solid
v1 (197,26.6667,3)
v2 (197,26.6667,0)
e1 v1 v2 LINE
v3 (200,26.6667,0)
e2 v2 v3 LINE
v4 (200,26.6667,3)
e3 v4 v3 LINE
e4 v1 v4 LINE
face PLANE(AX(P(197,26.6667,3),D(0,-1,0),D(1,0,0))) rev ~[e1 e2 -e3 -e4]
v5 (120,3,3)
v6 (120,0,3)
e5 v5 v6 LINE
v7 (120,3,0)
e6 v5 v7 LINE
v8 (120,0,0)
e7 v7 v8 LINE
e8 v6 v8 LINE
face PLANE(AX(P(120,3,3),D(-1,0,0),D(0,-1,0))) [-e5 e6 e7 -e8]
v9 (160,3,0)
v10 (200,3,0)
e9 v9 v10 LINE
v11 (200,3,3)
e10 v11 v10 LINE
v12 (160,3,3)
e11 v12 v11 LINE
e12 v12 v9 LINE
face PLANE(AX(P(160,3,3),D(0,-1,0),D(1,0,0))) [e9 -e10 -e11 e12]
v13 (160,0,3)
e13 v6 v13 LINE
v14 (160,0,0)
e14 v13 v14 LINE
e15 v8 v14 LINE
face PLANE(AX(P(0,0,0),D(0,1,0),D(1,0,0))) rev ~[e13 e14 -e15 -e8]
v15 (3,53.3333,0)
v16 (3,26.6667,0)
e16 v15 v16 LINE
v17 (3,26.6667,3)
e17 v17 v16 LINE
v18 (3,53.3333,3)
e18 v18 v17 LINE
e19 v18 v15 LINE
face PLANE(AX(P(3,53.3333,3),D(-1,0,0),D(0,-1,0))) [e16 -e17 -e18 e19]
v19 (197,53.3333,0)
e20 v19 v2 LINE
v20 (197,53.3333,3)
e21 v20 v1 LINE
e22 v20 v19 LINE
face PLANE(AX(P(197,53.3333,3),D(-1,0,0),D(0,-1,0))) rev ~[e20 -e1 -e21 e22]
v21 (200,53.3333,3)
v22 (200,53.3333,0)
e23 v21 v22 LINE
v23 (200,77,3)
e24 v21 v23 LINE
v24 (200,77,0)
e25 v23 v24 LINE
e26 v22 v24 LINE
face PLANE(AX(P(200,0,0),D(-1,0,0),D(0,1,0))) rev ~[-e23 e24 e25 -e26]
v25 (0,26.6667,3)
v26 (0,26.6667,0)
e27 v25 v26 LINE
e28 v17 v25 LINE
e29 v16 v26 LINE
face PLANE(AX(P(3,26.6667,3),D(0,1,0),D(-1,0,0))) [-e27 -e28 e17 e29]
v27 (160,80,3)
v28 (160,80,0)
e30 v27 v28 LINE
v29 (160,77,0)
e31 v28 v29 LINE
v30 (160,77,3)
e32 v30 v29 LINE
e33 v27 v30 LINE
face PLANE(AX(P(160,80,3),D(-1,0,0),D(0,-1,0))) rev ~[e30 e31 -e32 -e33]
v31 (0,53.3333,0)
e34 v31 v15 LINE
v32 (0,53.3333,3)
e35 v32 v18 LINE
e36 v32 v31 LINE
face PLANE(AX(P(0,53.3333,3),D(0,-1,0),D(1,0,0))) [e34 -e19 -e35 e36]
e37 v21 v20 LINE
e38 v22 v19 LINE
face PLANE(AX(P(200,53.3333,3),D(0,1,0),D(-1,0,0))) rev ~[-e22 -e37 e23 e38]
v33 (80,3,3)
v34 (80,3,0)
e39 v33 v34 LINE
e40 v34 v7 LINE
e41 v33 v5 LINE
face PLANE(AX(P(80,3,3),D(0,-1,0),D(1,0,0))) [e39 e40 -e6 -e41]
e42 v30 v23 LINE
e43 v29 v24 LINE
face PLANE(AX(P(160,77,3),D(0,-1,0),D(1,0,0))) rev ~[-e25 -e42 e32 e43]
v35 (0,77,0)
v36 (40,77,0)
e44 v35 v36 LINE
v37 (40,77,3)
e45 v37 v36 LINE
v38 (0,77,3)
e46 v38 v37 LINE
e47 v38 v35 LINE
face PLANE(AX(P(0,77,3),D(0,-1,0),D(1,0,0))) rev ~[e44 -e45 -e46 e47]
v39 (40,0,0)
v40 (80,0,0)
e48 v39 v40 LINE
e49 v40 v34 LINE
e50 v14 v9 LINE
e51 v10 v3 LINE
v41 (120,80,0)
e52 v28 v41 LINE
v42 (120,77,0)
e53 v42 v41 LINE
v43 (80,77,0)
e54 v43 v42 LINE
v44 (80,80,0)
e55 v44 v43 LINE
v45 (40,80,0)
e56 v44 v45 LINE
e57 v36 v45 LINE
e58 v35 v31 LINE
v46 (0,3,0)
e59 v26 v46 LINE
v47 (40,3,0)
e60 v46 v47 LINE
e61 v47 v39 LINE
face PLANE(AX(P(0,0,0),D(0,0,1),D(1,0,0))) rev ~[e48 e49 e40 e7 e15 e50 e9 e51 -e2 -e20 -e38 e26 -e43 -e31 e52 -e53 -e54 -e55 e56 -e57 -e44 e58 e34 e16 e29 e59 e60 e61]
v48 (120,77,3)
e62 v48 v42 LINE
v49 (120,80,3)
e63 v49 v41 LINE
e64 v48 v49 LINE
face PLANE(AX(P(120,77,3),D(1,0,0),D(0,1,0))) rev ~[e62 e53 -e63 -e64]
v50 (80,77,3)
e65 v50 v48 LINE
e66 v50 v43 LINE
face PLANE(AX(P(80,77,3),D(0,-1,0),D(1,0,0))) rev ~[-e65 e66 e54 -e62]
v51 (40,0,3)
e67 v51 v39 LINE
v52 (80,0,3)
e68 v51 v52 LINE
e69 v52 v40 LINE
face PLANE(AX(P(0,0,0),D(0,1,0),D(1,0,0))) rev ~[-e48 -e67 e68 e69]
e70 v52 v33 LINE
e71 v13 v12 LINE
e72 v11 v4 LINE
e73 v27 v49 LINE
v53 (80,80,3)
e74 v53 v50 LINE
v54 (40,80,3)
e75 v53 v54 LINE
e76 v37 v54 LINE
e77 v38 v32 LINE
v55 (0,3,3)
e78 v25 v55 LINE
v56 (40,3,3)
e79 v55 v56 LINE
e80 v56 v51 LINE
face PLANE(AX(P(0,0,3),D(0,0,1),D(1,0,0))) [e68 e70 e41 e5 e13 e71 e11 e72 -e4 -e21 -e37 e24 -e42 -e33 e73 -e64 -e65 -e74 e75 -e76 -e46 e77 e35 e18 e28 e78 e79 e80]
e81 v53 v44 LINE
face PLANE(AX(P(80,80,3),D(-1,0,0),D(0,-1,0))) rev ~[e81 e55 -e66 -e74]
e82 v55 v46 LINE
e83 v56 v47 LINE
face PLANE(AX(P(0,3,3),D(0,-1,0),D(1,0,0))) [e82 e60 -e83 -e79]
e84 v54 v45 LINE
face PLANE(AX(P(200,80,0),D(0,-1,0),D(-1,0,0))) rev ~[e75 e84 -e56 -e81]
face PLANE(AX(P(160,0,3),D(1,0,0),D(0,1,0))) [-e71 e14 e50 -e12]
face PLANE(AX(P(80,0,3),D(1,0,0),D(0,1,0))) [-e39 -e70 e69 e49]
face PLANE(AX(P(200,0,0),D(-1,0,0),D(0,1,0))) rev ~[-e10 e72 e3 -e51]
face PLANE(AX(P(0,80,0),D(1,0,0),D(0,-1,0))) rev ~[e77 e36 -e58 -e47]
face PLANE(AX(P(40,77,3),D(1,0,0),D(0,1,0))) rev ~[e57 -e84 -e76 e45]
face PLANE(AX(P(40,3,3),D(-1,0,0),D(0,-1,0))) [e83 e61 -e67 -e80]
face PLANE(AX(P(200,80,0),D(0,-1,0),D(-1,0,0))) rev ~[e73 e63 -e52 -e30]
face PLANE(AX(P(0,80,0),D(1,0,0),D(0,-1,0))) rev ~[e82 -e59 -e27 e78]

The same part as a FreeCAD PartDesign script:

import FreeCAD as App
import Part
import Sketcher
from FreeCAD import Vector

doc = App.newDocument("Part")
body = doc.addObject("PartDesign::Body", "Body")

sketch1 = body.newObject("Sketcher::SketchObject", "Sketch")
sketch1.AttachmentSupport = (doc.getObject("XY_Plane"), [""])
sketch1.MapMode = "FlatFace"
sketch1.addGeometry([
    Part.LineSegment(Vector(0, 80, 0), Vector(0, 0, 0)),
    Part.LineSegment(Vector(0, 0, 0), Vector(200, 0, 0)),
    Part.LineSegment(Vector(200, 0, 0), Vector(200, 80, 0)),
    Part.LineSegment(Vector(200, 80, 0), Vector(0, 80, 0)),
], False)
sketch1.addConstraint([
    Sketcher.Constraint("Coincident", 0, 2, 1, 1),
    Sketcher.Constraint("Coincident", 1, 2, 2, 1),
    Sketcher.Constraint("Coincident", 2, 2, 3, 1),
    Sketcher.Constraint("Coincident", 3, 2, 0, 1),
    Sketcher.Constraint("Vertical", 0),
    Sketcher.Constraint("Horizontal", 1),
    Sketcher.Constraint("Vertical", 2),
    Sketcher.Constraint("Horizontal", 3),
    Sketcher.Constraint("Coincident", 0, 2, -1, 1),
    Sketcher.Constraint("DistanceX", 1, 1, 1, 2, 200.0),
    Sketcher.Constraint("DistanceY", 0, 2, 0, 1, 80.0),
])
pad1 = body.newObject("PartDesign::Pad", "Pad")
pad1.Profile = sketch1
pad1.Length = 3

sketch2 = body.newObject("Sketcher::SketchObject", "Sketch001")
sketch2.AttachmentSupport = (doc.getObject("XY_Plane"), [""])
sketch2.MapMode = "FlatFace"
sketch2.AttachmentOffset = App.Placement(Vector(0, 0, 3), App.Rotation())
sketch2.addGeometry([
    Part.LineSegment(Vector(200, 80, 0), Vector(160, 80, 0)),
    Part.LineSegment(Vector(160, 80, 0), Vector(160, 77, 0)),
    Part.LineSegment(Vector(160, 77, 0), Vector(200, 77, 0)),
    Part.LineSegment(Vector(200, 77, 0), Vector(200, 80, 0)),
    Part.LineSegment(Vector(120, 80, 0), Vector(80, 80, 0)),
    Part.LineSegment(Vector(80, 80, 0), Vector(80, 77, 0)),
    Part.LineSegment(Vector(80, 77, 0), Vector(120, 77, 0)),
    Part.LineSegment(Vector(120, 77, 0), Vector(120, 80, 0)),
    Part.LineSegment(Vector(0, 80, 0), Vector(0, 77, 0)),
    Part.LineSegment(Vector(0, 77, 0), Vector(40, 77, 0)),
    Part.LineSegment(Vector(40, 77, 0), Vector(40, 80, 0)),
    Part.LineSegment(Vector(40, 80, 0), Vector(0, 80, 0)),
    Part.LineSegment(Vector(0, 53.3, 0), Vector(0, 26.7, 0)),
    Part.LineSegment(Vector(0, 26.7, 0), Vector(3, 26.7, 0)),
    Part.LineSegment(Vector(3, 26.7, 0), Vector(3, 53.3, 0)),
    Part.LineSegment(Vector(3, 53.3, 0), Vector(0, 53.3, 0)),
    Part.LineSegment(Vector(160, 3, 0), Vector(160, 0, 0)),
    Part.LineSegment(Vector(160, 0, 0), Vector(200, 0, 0)),
    Part.LineSegment(Vector(200, 0, 0), Vector(200, 3, 0)),
    Part.LineSegment(Vector(200, 3, 0), Vector(160, 3, 0)),
    Part.LineSegment(Vector(80, 3, 0), Vector(80, 0, 0)),
    Part.LineSegment(Vector(80, 0, 0), Vector(120, 0, 0)),
    Part.LineSegment(Vector(120, 0, 0), Vector(120, 3, 0)),
    Part.LineSegment(Vector(120, 3, 0), Vector(80, 3, 0)),
    Part.LineSegment(Vector(0, 3, 0), Vector(0, 0, 0)),
    Part.LineSegment(Vector(0, 0, 0), Vector(40, 0, 0)),
    Part.LineSegment(Vector(40, 0, 0), Vector(40, 3, 0)),
    Part.LineSegment(Vector(40, 3, 0), Vector(0, 3, 0)),
    Part.LineSegment(Vector(200, 26.7, 0), Vector(200, 53.3, 0)),
    Part.LineSegment(Vector(200, 53.3, 0), Vector(197, 53.3, 0)),
    Part.LineSegment(Vector(197, 53.3, 0), Vector(197, 26.7, 0)),
    Part.LineSegment(Vector(197, 26.7, 0), Vector(200, 26.7, 0)),
], False)
sketch2.addConstraint([
    Sketcher.Constraint("Coincident", 0, 2, 1, 1),
    Sketcher.Constraint("Coincident", 1, 2, 2, 1),
    Sketcher.Constraint("Coincident", 2, 2, 3, 1),
    Sketcher.Constraint("Coincident", 3, 2, 0, 1),
    Sketcher.Constraint("Coincident", 4, 2, 5, 1),
    Sketcher.Constraint("Coincident", 5, 2, 6, 1),
    Sketcher.Constraint("Coincident", 6, 2, 7, 1),
    Sketcher.Constraint("Coincident", 7, 2, 4, 1),
    Sketcher.Constraint("Coincident", 8, 2, 9, 1),
    Sketcher.Constraint("Coincident", 9, 2, 10, 1),
    Sketcher.Constraint("Coincident", 10, 2, 11, 1),
    Sketcher.Constraint("Coincident", 11, 2, 8, 1),
    Sketcher.Constraint("Coincident", 12, 2, 13, 1),
    Sketcher.Constraint("Coincident", 13, 2, 14, 1),
    Sketcher.Constraint("Coincident", 14, 2, 15, 1),
    Sketcher.Constraint("Coincident", 15, 2, 12, 1),
    Sketcher.Constraint("Coincident", 16, 2, 17, 1),
    Sketcher.Constraint("Coincident", 17, 2, 18, 1),
    Sketcher.Constraint("Coincident", 18, 2, 19, 1),
    Sketcher.Constraint("Coincident", 19, 2, 16, 1),
    Sketcher.Constraint("Coincident", 20, 2, 21, 1),
    Sketcher.Constraint("Coincident", 21, 2, 22, 1),
    Sketcher.Constraint("Coincident", 22, 2, 23, 1),
    Sketcher.Constraint("Coincident", 23, 2, 20, 1),
    Sketcher.Constraint("Coincident", 24, 2, 25, 1),
    Sketcher.Constraint("Coincident", 25, 2, 26, 1),
    Sketcher.Constraint("Coincident", 26, 2, 27, 1),
    Sketcher.Constraint("Coincident", 27, 2, 24, 1),
    Sketcher.Constraint("Coincident", 28, 2, 29, 1),
    Sketcher.Constraint("Coincident", 29, 2, 30, 1),
    Sketcher.Constraint("Coincident", 30, 2, 31, 1),
    Sketcher.Constraint("Coincident", 31, 2, 28, 1),
    Sketcher.Constraint("Horizontal", 0),
    Sketcher.Constraint("Vertical", 1),
    Sketcher.Constraint("Horizontal", 2),
    Sketcher.Constraint("Vertical", 3),
    Sketcher.Constraint("Horizontal", 4),
    Sketcher.Constraint("Vertical", 5),
    Sketcher.Constraint("Horizontal", 6),
    Sketcher.Constraint("Vertical", 7),
    Sketcher.Constraint("Vertical", 8),
    Sketcher.Constraint("Horizontal", 9),
    Sketcher.Constraint("Vertical", 10),
    Sketcher.Constraint("Horizontal", 11),
    Sketcher.Constraint("Vertical", 12),
    Sketcher.Constraint("Horizontal", 13),
    Sketcher.Constraint("Vertical", 14),
    Sketcher.Constraint("Horizontal", 15),
    Sketcher.Constraint("Vertical", 16),
    Sketcher.Constraint("Horizontal", 17),
    Sketcher.Constraint("Vertical", 18),
    Sketcher.Constraint("Horizontal", 19),
    Sketcher.Constraint("Vertical", 20),
    Sketcher.Constraint("Horizontal", 21),
    Sketcher.Constraint("Vertical", 22),
    Sketcher.Constraint("Horizontal", 23),
    Sketcher.Constraint("Vertical", 24),
    Sketcher.Constraint("Horizontal", 25),
    Sketcher.Constraint("Vertical", 26),
    Sketcher.Constraint("Horizontal", 27),
    Sketcher.Constraint("Vertical", 28),
    Sketcher.Constraint("Horizontal", 29),
    Sketcher.Constraint("Vertical", 30),
    Sketcher.Constraint("Horizontal", 31),
    Sketcher.Constraint("Coincident", 24, 2, -1, 1),
    Sketcher.Constraint("PointOnObject", 8, 2, -2),
    Sketcher.Constraint("PointOnObject", 12, 2, -2),
    Sketcher.Constraint("PointOnObject", 16, 2, -1),
    Sketcher.Constraint("PointOnObject", 20, 2, -1),
    Sketcher.Constraint("Horizontal", 3, 2, 4, 2),
    Sketcher.Constraint("Horizontal", 2, 2, 5, 2),
    Sketcher.Constraint("Horizontal", 6, 2, 8, 2),
    Sketcher.Constraint("Horizontal", 7, 2, 10, 2),
    Sketcher.Constraint("Horizontal", 19, 2, 22, 2),
    Sketcher.Constraint("Horizontal", 23, 2, 26, 2),
    Sketcher.Constraint("Horizontal", 15, 2, 28, 2),
    Sketcher.Constraint("Horizontal", 13, 2, 30, 2),
    Sketcher.Constraint("Vertical", 1, 2, 16, 2),
    Sketcher.Constraint("Vertical", 3, 2, 17, 2),
    Sketcher.Constraint("Vertical", 5, 2, 20, 2),
    Sketcher.Constraint("Vertical", 7, 2, 21, 2),
    Sketcher.Constraint("Vertical", 10, 2, 25, 2),
    Sketcher.Constraint("Vertical", 18, 2, 28, 2),
    Sketcher.Constraint("Equal", 2, 4),
    Sketcher.Constraint("Equal", 6, 9),
    Sketcher.Constraint("Equal", 15, 29),
    Sketcher.Constraint("Equal", 31, 1),
    Sketcher.Constraint("Equal", 10, 16),
    Sketcher.Constraint("DistanceX", 0, 2, 0, 1, 40.0),
    Sketcher.Constraint("DistanceX", 13, 1, 13, 2, 3.0),
    Sketcher.Constraint("DistanceX", 6, 2, 1, 2, 40.0),
    Sketcher.Constraint("DistanceX", 9, 2, 5, 2, 40.0),
    Sketcher.Constraint("DistanceY", 12, 2, 12, 1, 26.6666),
    Sketcher.Constraint("DistanceY", -1, 1, 0, 2, 80.0),
    Sketcher.Constraint("DistanceY", -1, 1, 12, 2, 26.6667),
])
pocket1 = body.newObject("PartDesign::Pocket", "Pocket")
pocket1.Profile = sketch2
pocket1.Length = 3

doc.recompute()
